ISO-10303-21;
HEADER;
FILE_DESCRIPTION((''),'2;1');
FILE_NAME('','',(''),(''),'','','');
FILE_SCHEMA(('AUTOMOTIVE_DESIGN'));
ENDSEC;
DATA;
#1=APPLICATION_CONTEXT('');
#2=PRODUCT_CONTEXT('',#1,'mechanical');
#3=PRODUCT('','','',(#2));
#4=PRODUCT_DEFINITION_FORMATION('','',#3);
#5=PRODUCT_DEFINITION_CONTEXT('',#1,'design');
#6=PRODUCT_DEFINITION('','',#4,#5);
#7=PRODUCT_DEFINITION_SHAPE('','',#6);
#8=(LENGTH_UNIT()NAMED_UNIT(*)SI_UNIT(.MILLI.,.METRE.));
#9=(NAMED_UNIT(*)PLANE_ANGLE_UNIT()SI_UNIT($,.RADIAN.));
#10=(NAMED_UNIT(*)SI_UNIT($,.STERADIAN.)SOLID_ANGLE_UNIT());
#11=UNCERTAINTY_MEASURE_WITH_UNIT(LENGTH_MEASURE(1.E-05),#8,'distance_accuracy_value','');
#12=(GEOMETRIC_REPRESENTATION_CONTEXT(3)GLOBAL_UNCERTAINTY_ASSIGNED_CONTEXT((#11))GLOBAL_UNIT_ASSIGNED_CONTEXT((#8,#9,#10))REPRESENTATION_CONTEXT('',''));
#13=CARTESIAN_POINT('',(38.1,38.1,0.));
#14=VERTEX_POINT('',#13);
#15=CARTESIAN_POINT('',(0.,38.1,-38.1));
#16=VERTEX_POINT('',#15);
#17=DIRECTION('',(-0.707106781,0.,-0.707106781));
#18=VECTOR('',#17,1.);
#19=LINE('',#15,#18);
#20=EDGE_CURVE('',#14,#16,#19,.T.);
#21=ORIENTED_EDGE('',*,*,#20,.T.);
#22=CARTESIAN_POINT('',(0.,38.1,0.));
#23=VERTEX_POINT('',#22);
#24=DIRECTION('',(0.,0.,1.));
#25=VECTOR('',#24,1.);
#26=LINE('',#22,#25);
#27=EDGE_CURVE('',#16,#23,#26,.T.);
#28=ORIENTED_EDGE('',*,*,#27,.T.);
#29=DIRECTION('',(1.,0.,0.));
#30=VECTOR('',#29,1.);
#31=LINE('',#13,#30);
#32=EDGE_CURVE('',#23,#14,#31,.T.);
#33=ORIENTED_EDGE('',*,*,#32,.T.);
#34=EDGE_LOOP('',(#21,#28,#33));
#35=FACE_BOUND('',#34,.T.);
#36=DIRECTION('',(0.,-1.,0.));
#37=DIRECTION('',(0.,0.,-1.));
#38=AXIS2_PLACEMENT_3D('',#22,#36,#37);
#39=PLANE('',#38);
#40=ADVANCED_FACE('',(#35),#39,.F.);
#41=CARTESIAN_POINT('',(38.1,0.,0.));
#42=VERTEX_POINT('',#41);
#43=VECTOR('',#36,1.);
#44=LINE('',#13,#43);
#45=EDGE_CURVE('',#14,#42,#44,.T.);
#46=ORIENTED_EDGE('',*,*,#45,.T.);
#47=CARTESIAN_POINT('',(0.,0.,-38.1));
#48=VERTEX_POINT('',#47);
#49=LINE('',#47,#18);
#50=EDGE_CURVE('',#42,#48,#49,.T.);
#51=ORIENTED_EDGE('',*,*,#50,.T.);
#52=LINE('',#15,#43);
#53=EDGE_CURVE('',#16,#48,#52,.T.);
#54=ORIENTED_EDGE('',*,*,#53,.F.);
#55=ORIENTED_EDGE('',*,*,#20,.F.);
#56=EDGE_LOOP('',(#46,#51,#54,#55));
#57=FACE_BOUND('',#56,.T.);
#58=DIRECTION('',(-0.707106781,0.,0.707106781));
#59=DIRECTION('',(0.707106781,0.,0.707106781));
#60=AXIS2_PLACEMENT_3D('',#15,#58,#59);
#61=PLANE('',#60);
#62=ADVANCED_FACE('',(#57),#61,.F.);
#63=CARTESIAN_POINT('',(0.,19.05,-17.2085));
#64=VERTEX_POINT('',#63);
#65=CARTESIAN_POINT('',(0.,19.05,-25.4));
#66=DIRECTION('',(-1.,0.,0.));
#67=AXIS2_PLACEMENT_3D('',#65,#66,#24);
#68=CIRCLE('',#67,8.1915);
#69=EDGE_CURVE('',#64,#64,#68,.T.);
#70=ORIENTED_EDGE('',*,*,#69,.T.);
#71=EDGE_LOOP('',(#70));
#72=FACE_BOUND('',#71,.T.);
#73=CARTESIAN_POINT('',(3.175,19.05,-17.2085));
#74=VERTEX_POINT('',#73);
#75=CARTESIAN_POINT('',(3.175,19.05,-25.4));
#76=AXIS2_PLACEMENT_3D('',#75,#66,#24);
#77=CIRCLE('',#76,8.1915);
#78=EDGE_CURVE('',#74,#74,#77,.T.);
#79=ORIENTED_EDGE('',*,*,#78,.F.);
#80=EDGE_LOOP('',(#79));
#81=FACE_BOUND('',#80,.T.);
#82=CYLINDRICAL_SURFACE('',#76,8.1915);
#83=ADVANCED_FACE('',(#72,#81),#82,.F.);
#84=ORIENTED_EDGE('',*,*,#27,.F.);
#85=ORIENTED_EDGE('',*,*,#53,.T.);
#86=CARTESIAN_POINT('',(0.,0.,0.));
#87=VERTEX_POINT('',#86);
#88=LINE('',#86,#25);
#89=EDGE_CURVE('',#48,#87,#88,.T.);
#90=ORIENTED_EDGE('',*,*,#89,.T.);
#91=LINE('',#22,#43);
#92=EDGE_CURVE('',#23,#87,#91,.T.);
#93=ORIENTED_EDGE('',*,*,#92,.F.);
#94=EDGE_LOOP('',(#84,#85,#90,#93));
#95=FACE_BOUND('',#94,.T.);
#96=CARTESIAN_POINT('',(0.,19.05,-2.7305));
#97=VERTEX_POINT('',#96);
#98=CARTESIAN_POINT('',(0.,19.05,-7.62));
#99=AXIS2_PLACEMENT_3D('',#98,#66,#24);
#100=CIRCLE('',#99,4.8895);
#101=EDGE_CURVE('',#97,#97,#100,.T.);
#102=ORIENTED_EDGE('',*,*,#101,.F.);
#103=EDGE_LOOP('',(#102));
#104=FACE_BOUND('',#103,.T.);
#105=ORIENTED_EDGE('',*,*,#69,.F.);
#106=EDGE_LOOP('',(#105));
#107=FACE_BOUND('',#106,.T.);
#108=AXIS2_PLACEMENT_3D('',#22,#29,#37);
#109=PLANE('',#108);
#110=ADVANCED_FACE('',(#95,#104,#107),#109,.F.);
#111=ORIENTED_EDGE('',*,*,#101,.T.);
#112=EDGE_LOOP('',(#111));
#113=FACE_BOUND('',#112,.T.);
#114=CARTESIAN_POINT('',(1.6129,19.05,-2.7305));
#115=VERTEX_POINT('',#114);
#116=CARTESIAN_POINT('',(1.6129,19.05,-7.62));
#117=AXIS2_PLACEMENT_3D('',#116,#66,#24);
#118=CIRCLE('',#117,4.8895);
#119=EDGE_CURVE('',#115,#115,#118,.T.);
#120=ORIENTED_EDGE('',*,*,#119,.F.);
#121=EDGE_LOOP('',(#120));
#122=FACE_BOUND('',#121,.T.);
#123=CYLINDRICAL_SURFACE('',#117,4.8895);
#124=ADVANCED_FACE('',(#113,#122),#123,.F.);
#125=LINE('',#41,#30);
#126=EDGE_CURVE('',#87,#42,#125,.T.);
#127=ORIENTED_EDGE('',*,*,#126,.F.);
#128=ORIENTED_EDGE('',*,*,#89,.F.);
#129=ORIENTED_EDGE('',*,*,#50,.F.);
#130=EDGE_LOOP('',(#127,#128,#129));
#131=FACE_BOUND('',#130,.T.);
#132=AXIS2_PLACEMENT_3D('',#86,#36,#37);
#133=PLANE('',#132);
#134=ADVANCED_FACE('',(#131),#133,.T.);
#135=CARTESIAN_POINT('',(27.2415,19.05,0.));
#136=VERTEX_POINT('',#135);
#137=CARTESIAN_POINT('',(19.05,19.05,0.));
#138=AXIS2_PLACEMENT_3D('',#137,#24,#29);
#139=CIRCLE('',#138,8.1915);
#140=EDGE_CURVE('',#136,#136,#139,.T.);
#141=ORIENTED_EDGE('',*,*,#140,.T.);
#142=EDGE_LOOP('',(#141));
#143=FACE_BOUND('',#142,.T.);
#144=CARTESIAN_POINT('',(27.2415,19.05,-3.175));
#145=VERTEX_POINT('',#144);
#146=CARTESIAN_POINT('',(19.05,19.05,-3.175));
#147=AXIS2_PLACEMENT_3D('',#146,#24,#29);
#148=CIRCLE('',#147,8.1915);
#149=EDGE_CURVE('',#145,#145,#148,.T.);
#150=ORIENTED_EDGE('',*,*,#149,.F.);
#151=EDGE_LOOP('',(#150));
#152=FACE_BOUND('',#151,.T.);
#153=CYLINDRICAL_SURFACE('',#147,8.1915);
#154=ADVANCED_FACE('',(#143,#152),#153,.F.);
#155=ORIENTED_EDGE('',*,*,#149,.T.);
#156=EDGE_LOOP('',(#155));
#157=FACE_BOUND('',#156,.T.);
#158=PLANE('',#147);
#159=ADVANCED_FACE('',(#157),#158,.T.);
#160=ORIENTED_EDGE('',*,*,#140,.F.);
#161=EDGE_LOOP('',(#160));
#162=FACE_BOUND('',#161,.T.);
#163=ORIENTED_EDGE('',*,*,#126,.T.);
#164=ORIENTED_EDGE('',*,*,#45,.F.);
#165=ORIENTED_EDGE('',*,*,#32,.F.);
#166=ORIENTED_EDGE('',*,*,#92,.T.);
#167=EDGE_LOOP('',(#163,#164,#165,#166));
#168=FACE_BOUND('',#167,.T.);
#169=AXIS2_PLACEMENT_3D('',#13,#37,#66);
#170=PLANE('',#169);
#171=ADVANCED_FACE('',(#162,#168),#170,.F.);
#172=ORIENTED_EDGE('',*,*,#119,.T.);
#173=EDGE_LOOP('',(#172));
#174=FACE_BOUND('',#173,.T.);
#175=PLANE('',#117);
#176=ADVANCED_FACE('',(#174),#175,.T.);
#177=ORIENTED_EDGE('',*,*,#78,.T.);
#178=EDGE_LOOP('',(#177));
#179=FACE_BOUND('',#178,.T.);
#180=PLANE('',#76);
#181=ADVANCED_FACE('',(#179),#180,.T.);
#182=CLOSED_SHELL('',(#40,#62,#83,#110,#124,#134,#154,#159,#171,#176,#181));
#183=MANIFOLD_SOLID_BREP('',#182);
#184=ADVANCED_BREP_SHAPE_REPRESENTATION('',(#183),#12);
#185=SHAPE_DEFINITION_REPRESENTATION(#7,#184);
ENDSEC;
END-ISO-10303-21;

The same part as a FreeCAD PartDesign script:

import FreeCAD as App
import Part
import Sketcher

V = App.Vector
Q = App.Units.Quantity

doc = App.newDocument("Part")
body = doc.addObject("PartDesign::Body", "Body")

# Sketch on XZ plane
sketch1 = body.newObject("Sketcher::SketchObject", "Sketch")
sketch1.AttachmentSupport = (doc.getObject("XZ_Plane"), [""])
sketch1.MapMode = "FlatFace"
sketch1.addGeometry([
    Part.LineSegment(V(0, -38, 0), V(0, 0, 0)),
    Part.LineSegment(V(0, 0, 0), V(38, 0, 0)),
    Part.LineSegment(V(38, 0, 0), V(0, -38, 0)),
], False)
sketch1.addConstraint([
    Sketcher.Constraint("Coincident", 0, 2, 1, 1),
    Sketcher.Constraint("Coincident", 1, 2, 2, 1),
    Sketcher.Constraint("Coincident", 2, 2, 0, 1),
    Sketcher.Constraint("Vertical", 0),
    Sketcher.Constraint("Horizontal", 1),
    Sketcher.Constraint("Coincident", 0, 2, -1, 1),
    Sketcher.Constraint("Equal", 1, 0),
    Sketcher.Constraint("DistanceX", 1, 1, 1, 2, Q("1.5 in")),
])
pad1 = body.newObject("PartDesign::Pad", "Pad")
pad1.Profile = sketch1
pad1.Length = Q("1.5 in")
pad1.Reversed = True

# Sketch on XY plane
sketch2 = body.newObject("Sketcher::SketchObject", "Sketch001")
sketch2.AttachmentSupport = (doc.getObject("XY_Plane"), [""])
sketch2.MapMode = "FlatFace"
sketch2.addGeometry(Part.Circle(V(19, 19, 0), V(0, 0, 1), 8), False)
sketch2.addConstraint([
    Sketcher.Constraint("Diameter", 0, Q("0.645 in")),
    Sketcher.Constraint("DistanceX", -1, 1, 0, 3, Q("0.75 in")),
    Sketcher.Constraint("DistanceY", -1, 1, 0, 3, Q("0.75 in")),
])
pocket1 = body.newObject("PartDesign::Pocket", "Pocket")
pocket1.Profile = sketch2
pocket1.Length = Q("0.125 in")

# Sketch on YZ plane
sketch3 = body.newObject("Sketcher::SketchObject", "Sketch002")
sketch3.AttachmentSupport = (doc.getObject("YZ_Plane"), [""])
sketch3.MapMode = "FlatFace"
sketch3.addGeometry(Part.Circle(V(19, -25, 0), V(0, 0, 1), 8), False)
sketch3.addConstraint([
    Sketcher.Constraint("Diameter", 0, Q("0.645 in")),
    Sketcher.Constraint("DistanceY", 0, 3, -1, 1, Q("1 in")),
    Sketcher.Constraint("DistanceX", -1, 1, 0, 3, Q("0.75 in")),
])
pocket2 = body.newObject("PartDesign::Pocket", "Pocket001")
pocket2.Profile = sketch3
pocket2.Length = Q("0.125 in")
pocket2.Reversed = True

# Sketch on YZ plane
sketch4 = body.newObject("Sketcher::SketchObject", "Sketch003")
sketch4.AttachmentSupport = (doc.getObject("YZ_Plane"), [""])
sketch4.MapMode = "FlatFace"
sketch4.addGeometry(Part.Circle(V(19.1, -7.6, 0), V(0, 0, 1), 4.9), False)
sketch4.addConstraint([
    Sketcher.Constraint("Diameter", 0, Q("0.385 in")),
    Sketcher.Constraint("DistanceY", 0, 3, -1, 1, Q("0.3 in")),
    Sketcher.Constraint("DistanceX", -1, 1, 0, 3, Q("0.75 in")),
])
pocket3 = body.newObject("PartDesign::Pocket", "Pocket002")
pocket3.Profile = sketch4
pocket3.Length = Q("0.0635 in")
pocket3.Reversed = True

doc.recompute()
